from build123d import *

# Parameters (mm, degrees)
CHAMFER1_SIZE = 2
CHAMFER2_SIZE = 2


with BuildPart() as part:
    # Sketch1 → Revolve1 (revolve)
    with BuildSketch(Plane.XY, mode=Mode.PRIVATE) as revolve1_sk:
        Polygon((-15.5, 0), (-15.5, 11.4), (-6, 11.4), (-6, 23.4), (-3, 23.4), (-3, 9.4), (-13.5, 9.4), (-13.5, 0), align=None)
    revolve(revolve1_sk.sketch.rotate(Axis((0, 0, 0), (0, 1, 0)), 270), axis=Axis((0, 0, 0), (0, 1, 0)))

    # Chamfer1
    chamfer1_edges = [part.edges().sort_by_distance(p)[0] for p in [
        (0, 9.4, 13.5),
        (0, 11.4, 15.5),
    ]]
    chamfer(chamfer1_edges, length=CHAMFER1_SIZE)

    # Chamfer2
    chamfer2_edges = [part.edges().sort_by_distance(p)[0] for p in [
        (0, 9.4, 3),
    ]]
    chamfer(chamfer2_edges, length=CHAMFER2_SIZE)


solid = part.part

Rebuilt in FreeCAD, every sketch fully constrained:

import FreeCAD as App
import Part
import Sketcher
Q = App.Units.Quantity


def edges_at(feature, points):
    """Names of the edges that pass closest to the given points."""
    edges = feature.Shape.Edges
    near = lambda p: min(range(len(edges)), key=lambda i: edges[i].distToShape(Part.Vertex(*p))[0])
    return sorted({f"Edge{near(p) + 1}" for p in points})

doc = App.newDocument("Part")
body = doc.addObject("PartDesign::Body", "Body")

sketch1 = body.newObject("Sketcher::SketchObject", "Sketch")
sketch1.AttachmentSupport = (doc.getObject("XY_Plane"), [""])
sketch1.MapMode = "FlatFace"
sketch1.addGeometry([
    Part.LineSegment(App.Vector(-15.5, 11.4, 0), App.Vector(-15.5, 0, 0)),
    Part.LineSegment(App.Vector(-15.5, 0, 0), App.Vector(-13.5, 0, 0)),
    Part.LineSegment(App.Vector(-13.5, 0, 0), App.Vector(-13.5, 9.4, 0)),
    Part.LineSegment(App.Vector(-13.5, 9.4, 0), App.Vector(-3, 9.4, 0)),
    Part.LineSegment(App.Vector(-3, 9.4, 0), App.Vector(-3, 23.4, 0)),
    Part.LineSegment(App.Vector(-3, 23.4, 0), App.Vector(-6, 23.4, 0)),
    Part.LineSegment(App.Vector(-6, 23.4, 0), App.Vector(-6, 11.4, 0)),
    Part.LineSegment(App.Vector(-6, 11.4, 0), App.Vector(-15.5, 11.4, 0)),
], False)
sketch1.addConstraint([
    Sketcher.Constraint("Coincident", 0, 2, 1, 1),
    Sketcher.Constraint("Coincident", 1, 2, 2, 1),
    Sketcher.Constraint("Coincident", 2, 2, 3, 1),
    Sketcher.Constraint("Coincident", 3, 2, 4, 1),
    Sketcher.Constraint("Coincident", 4, 2, 5, 1),
    Sketcher.Constraint("Coincident", 5, 2, 6, 1),
    Sketcher.Constraint("Coincident", 6, 2, 7, 1),
    Sketcher.Constraint("Coincident", 7, 2, 0, 1),
    Sketcher.Constraint("Vertical", 0),
    Sketcher.Constraint("Horizontal", 1),
    Sketcher.Constraint("Vertical", 2),
    Sketcher.Constraint("Horizontal", 3),
    Sketcher.Constraint("Vertical", 4),
    Sketcher.Constraint("Horizontal", 5),
    Sketcher.Constraint("Vertical", 6),
    Sketcher.Constraint("Horizontal", 7),
    Sketcher.Constraint("PointOnObject", 0, 2, -1),
    Sketcher.Constraint("DistanceX", 1, 1, 1, 2, Q("2 mm")),
    Sketcher.Constraint("DistanceX", 5, 2, 5, 1, Q("3 mm")),
    Sketcher.Constraint("DistanceY", 4, 1, 4, 2, Q("14 mm")),
    Sketcher.Constraint("DistanceY", 6, 2, 6, 1, Q("12 mm")),
    Sketcher.Constraint("DistanceX", 3, 1, 3, 2, Q("10.5 mm")),
    Sketcher.Constraint("DistanceY", 0, 2, 0, 1, Q("11.4 mm")),
    Sketcher.Constraint("DistanceX", 3, 2, -1, 1, Q("3 mm")),
])
revolution = body.newObject("PartDesign::Revolution", "Revolution")
revolution.Profile = sketch1
revolution.ReferenceAxis = (sketch1, ["V_Axis"])
revolution.Angle = 360
doc.recompute()

chamfer = body.newObject("PartDesign::Chamfer", "Chamfer")
chamfer.Base = (revolution, edges_at(revolution, [(0, 9.4, 13.5), (0, 11.4, 15.5)]))
chamfer.Size = 2
doc.recompute()

chamfer2 = body.newObject("PartDesign::Chamfer", "Chamfer001")
chamfer2.Base = (chamfer, edges_at(chamfer, [(0, 9.4, 3)]))
chamfer2.Size = 2

doc.recompute()
